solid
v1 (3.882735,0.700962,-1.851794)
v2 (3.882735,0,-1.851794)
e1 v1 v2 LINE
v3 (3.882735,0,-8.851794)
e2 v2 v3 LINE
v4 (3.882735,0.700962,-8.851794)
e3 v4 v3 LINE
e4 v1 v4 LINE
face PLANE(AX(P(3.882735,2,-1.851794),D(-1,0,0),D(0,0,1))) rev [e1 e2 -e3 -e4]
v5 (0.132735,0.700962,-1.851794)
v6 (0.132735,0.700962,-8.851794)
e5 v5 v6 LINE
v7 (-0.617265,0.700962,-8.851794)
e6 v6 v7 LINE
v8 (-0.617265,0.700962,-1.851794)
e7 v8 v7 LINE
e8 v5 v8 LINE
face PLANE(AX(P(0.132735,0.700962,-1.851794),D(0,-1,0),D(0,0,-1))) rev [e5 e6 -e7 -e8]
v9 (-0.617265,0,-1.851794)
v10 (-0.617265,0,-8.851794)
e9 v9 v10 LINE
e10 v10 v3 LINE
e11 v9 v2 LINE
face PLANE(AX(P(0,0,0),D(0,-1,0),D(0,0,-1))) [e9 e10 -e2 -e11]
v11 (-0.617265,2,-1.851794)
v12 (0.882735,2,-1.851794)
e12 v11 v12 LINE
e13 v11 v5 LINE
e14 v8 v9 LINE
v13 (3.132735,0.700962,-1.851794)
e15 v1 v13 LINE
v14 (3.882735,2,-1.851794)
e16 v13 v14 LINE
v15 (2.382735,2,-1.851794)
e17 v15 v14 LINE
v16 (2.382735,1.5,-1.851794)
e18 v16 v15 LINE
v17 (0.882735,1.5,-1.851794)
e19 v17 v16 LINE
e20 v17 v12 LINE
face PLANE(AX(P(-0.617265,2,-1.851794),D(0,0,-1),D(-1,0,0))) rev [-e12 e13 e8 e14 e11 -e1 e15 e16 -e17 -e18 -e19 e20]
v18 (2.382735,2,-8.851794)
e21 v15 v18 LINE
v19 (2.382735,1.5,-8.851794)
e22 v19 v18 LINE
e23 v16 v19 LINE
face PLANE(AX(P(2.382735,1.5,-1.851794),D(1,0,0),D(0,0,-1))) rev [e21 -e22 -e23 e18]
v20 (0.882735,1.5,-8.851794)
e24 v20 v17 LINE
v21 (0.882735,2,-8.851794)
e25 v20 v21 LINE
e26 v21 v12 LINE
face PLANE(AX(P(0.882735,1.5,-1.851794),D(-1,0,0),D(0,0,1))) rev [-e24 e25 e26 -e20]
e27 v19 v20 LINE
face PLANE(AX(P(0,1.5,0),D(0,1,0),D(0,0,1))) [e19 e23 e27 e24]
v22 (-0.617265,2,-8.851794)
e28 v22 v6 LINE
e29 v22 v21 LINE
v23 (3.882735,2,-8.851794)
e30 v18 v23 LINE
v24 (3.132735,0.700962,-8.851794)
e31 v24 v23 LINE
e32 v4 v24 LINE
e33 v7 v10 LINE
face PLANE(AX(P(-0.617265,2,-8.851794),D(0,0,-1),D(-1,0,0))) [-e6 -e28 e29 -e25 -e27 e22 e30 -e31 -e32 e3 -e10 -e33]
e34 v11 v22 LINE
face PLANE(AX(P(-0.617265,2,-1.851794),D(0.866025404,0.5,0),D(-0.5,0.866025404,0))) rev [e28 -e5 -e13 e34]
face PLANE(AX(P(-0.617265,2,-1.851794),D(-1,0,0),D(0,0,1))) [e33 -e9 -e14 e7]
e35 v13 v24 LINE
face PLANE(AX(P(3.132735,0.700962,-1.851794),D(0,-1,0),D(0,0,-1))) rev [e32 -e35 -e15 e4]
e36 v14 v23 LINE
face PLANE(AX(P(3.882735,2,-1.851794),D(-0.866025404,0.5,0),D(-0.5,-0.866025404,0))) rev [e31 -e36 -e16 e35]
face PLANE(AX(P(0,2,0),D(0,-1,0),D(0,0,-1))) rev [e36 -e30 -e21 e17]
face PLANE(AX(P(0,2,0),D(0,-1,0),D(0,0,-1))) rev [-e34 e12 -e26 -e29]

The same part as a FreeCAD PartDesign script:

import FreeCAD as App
import Part
import Sketcher
Q = App.Units.Quantity

doc = App.newDocument("Part")
body = doc.addObject("PartDesign::Body", "Body")

# Sketch on XZ plane
sketch1 = body.newObject("Sketcher::SketchObject", "Sketch")
sketch1.AttachmentSupport = (doc.getObject("XZ_Plane"), [""])
sketch1.MapMode = "FlatFace"
sketch1.addGeometry(Part.LineSegment(App.Vector(-0.617265, -8.851794, 0), App.Vector(-0.617265, -1.851794, 0)), False)
sketch1.addGeometry(Part.LineSegment(App.Vector(-0.617265, -1.851794, 0), App.Vector(3.882735, -1.851794, 0)), False)
sketch1.addGeometry(Part.LineSegment(App.Vector(3.882735, -1.851794, 0), App.Vector(3.882735, -8.851794, 0)), False)
sketch1.addGeometry(Part.LineSegment(App.Vector(3.882735, -8.851794, 0), App.Vector(-0.617265, -8.851794, 0)), False)
sketch1.addConstraint(Sketcher.Constraint("Coincident", 0, 2, 1, 1))
sketch1.addConstraint(Sketcher.Constraint("Coincident", 1, 2, 2, 1))
sketch1.addConstraint(Sketcher.Constraint("Coincident", 2, 2, 3, 1))
sketch1.addConstraint(Sketcher.Constraint("Coincident", 3, 2, 0, 1))
sketch1.addConstraint(Sketcher.Constraint("Vertical", 0))
sketch1.addConstraint(Sketcher.Constraint("Horizontal", 1))
sketch1.addConstraint(Sketcher.Constraint("Vertical", 2))
sketch1.addConstraint(Sketcher.Constraint("Horizontal", 3))
sketch1.addConstraint(Sketcher.Constraint("DistanceY", 0, 1, 0, 2, 7.0))
sketch1.addConstraint(Sketcher.Constraint("DistanceX", 1, 1, 1, 2, 4.5))
sketch1.addConstraint(Sketcher.Constraint("DistanceX", 0, 2, -1, 1, 0.617265))
sketch1.addConstraint(Sketcher.Constraint("DistanceY", 0, 2, -1, 1, 1.851794))
pad1 = body.newObject("PartDesign::Pad", "Pad")
pad1.Profile = sketch1
pad1.Length = 2
pad1.Reversed = True

# Sketch on XZ plane
sketch2 = body.newObject("Sketcher::SketchObject", "Sketch001")
sketch2.AttachmentSupport = (doc.getObject("XZ_Plane"), [""])
sketch2.MapMode = "FlatFace"
sketch2.AttachmentOffset = App.Placement(App.Vector(0, 0, -2), App.Rotation())
sketch2.addGeometry(Part.LineSegment(App.Vector(0.882735, -8.851794, 0), App.Vector(0.882735, -1.851794, 0)), False)
sketch2.addGeometry(Part.LineSegment(App.Vector(0.882735, -1.851794, 0), App.Vector(2.382735, -1.851794, 0)), False)
sketch2.addGeometry(Part.LineSegment(App.Vector(2.382735, -1.851794, 0), App.Vector(2.382735, -8.851794, 0)), False)
sketch2.addGeometry(Part.LineSegment(App.Vector(2.382735, -8.851794, 0), App.Vector(0.882735, -8.851794, 0)), False)
sketch2.addConstraint(Sketcher.Constraint("Coincident", 0, 2, 1, 1))
sketch2.addConstraint(Sketcher.Constraint("Coincident", 1, 2, 2, 1))
sketch2.addConstraint(Sketcher.Constraint("Coincident", 2, 2, 3, 1))
sketch2.addConstraint(Sketcher.Constraint("Coincident", 3, 2, 0, 1))
sketch2.addConstraint(Sketcher.Constraint("Vertical", 0))
sketch2.addConstraint(Sketcher.Constraint("Horizontal", 1))
sketch2.addConstraint(Sketcher.Constraint("Vertical", 2))
sketch2.addConstraint(Sketcher.Constraint("Horizontal", 3))
sketch2.addConstraint(Sketcher.Constraint("DistanceY", 0, 1, 0, 2, 7.0))
sketch2.addConstraint(Sketcher.Constraint("DistanceX", 1, 1, 1, 2, 1.5))
sketch2.addConstraint(Sketcher.Constraint("DistanceX", -1, 1, 0, 2, 0.882735))
sketch2.addConstraint(Sketcher.Constraint("DistanceY", 0, 2, -1, 1, 1.851794))
pocket1 = body.newObject("PartDesign::Pocket", "Pocket")
pocket1.Profile = sketch2
pocket1.Length = 0.5
pocket1.Reversed = True

# Sketch on XY plane
sketch3 = body.newObject("Sketcher::SketchObject", "Sketch002")
sketch3.AttachmentSupport = (doc.getObject("XY_Plane"), [""])
sketch3.MapMode = "FlatFace"
sketch3.AttachmentOffset = App.Placement(App.Vector(0, 0, -8.851794), App.Rotation())
sketch3.addGeometry(Part.LineSegment(App.Vector(-0.617265, 2, 0), App.Vector(0.132735, 0.700962, 0)), False)
sketch3.addGeometry(Part.LineSegment(App.Vector(0.132735, 0.700962, 0), App.Vector(-0.617265, 0.700962, 0)), False)
sketch3.addGeometry(Part.LineSegment(App.Vector(-0.617265, 0.700962, 0), App.Vector(-0.617265, 2, 0)), False)
sketch3.addGeometry(Part.LineSegment(App.Vector(3.132735, 0.700962, 0), App.Vector(3.882735, 2, 0)), False)
sketch3.addGeometry(Part.LineSegment(App.Vector(3.882735, 2, 0), App.Vector(3.882735, 0.700962, 0)), False)
sketch3.addGeometry(Part.LineSegment(App.Vector(3.882735, 0.700962, 0), App.Vector(3.132735, 0.700962, 0)), False)
sketch3.addConstraint(Sketcher.Constraint("Coincident", 0, 2, 1, 1))
sketch3.addConstraint(Sketcher.Constraint("Coincident", 1, 2, 2, 1))
sketch3.addConstraint(Sketcher.Constraint("Coincident", 2, 2, 0, 1))
sketch3.addConstraint(Sketcher.Constraint("Coincident", 3, 2, 4, 1))
sketch3.addConstraint(Sketcher.Constraint("Coincident", 4, 2, 5, 1))
sketch3.addConstraint(Sketcher.Constraint("Coincident", 5, 2, 3, 1))
sketch3.addConstraint(Sketcher.Constraint("Horizontal", 1))
sketch3.addConstraint(Sketcher.Constraint("Vertical", 2))
sketch3.addConstraint(Sketcher.Constraint("Vertical", 4))
sketch3.addConstraint(Sketcher.Constraint("Horizontal", 5))
sketch3.addConstraint(Sketcher.Constraint("Horizontal", 2, 2, 3, 2))
sketch3.addConstraint(Sketcher.Constraint("Horizontal", 1, 2, 4, 2))
sketch3.addConstraint(Sketcher.Constraint("Equal", 1, 5))
sketch3.addConstraint(Sketcher.Constraint("Angle", 0, Q("-60 deg")))
sketch3.addConstraint(Sketcher.Constraint("DistanceY", -1, 1, 2, 2, 2.0))
sketch3.addConstraint(Sketcher.Constraint("DistanceX", 0, 2, 5, 2, 3.0))
sketch3.addConstraint(Sketcher.Constraint("Distance", 0, 1.5))
sketch3.addConstraint(Sketcher.Constraint("DistanceX", -1, 1, 0, 2, 0.132735))
pocket2 = body.newObject("PartDesign::Pocket", "Pocket001")
pocket2.Profile = sketch3
pocket2.Type = "ThroughAll"
pocket2.Reversed = True

doc.recompute()
